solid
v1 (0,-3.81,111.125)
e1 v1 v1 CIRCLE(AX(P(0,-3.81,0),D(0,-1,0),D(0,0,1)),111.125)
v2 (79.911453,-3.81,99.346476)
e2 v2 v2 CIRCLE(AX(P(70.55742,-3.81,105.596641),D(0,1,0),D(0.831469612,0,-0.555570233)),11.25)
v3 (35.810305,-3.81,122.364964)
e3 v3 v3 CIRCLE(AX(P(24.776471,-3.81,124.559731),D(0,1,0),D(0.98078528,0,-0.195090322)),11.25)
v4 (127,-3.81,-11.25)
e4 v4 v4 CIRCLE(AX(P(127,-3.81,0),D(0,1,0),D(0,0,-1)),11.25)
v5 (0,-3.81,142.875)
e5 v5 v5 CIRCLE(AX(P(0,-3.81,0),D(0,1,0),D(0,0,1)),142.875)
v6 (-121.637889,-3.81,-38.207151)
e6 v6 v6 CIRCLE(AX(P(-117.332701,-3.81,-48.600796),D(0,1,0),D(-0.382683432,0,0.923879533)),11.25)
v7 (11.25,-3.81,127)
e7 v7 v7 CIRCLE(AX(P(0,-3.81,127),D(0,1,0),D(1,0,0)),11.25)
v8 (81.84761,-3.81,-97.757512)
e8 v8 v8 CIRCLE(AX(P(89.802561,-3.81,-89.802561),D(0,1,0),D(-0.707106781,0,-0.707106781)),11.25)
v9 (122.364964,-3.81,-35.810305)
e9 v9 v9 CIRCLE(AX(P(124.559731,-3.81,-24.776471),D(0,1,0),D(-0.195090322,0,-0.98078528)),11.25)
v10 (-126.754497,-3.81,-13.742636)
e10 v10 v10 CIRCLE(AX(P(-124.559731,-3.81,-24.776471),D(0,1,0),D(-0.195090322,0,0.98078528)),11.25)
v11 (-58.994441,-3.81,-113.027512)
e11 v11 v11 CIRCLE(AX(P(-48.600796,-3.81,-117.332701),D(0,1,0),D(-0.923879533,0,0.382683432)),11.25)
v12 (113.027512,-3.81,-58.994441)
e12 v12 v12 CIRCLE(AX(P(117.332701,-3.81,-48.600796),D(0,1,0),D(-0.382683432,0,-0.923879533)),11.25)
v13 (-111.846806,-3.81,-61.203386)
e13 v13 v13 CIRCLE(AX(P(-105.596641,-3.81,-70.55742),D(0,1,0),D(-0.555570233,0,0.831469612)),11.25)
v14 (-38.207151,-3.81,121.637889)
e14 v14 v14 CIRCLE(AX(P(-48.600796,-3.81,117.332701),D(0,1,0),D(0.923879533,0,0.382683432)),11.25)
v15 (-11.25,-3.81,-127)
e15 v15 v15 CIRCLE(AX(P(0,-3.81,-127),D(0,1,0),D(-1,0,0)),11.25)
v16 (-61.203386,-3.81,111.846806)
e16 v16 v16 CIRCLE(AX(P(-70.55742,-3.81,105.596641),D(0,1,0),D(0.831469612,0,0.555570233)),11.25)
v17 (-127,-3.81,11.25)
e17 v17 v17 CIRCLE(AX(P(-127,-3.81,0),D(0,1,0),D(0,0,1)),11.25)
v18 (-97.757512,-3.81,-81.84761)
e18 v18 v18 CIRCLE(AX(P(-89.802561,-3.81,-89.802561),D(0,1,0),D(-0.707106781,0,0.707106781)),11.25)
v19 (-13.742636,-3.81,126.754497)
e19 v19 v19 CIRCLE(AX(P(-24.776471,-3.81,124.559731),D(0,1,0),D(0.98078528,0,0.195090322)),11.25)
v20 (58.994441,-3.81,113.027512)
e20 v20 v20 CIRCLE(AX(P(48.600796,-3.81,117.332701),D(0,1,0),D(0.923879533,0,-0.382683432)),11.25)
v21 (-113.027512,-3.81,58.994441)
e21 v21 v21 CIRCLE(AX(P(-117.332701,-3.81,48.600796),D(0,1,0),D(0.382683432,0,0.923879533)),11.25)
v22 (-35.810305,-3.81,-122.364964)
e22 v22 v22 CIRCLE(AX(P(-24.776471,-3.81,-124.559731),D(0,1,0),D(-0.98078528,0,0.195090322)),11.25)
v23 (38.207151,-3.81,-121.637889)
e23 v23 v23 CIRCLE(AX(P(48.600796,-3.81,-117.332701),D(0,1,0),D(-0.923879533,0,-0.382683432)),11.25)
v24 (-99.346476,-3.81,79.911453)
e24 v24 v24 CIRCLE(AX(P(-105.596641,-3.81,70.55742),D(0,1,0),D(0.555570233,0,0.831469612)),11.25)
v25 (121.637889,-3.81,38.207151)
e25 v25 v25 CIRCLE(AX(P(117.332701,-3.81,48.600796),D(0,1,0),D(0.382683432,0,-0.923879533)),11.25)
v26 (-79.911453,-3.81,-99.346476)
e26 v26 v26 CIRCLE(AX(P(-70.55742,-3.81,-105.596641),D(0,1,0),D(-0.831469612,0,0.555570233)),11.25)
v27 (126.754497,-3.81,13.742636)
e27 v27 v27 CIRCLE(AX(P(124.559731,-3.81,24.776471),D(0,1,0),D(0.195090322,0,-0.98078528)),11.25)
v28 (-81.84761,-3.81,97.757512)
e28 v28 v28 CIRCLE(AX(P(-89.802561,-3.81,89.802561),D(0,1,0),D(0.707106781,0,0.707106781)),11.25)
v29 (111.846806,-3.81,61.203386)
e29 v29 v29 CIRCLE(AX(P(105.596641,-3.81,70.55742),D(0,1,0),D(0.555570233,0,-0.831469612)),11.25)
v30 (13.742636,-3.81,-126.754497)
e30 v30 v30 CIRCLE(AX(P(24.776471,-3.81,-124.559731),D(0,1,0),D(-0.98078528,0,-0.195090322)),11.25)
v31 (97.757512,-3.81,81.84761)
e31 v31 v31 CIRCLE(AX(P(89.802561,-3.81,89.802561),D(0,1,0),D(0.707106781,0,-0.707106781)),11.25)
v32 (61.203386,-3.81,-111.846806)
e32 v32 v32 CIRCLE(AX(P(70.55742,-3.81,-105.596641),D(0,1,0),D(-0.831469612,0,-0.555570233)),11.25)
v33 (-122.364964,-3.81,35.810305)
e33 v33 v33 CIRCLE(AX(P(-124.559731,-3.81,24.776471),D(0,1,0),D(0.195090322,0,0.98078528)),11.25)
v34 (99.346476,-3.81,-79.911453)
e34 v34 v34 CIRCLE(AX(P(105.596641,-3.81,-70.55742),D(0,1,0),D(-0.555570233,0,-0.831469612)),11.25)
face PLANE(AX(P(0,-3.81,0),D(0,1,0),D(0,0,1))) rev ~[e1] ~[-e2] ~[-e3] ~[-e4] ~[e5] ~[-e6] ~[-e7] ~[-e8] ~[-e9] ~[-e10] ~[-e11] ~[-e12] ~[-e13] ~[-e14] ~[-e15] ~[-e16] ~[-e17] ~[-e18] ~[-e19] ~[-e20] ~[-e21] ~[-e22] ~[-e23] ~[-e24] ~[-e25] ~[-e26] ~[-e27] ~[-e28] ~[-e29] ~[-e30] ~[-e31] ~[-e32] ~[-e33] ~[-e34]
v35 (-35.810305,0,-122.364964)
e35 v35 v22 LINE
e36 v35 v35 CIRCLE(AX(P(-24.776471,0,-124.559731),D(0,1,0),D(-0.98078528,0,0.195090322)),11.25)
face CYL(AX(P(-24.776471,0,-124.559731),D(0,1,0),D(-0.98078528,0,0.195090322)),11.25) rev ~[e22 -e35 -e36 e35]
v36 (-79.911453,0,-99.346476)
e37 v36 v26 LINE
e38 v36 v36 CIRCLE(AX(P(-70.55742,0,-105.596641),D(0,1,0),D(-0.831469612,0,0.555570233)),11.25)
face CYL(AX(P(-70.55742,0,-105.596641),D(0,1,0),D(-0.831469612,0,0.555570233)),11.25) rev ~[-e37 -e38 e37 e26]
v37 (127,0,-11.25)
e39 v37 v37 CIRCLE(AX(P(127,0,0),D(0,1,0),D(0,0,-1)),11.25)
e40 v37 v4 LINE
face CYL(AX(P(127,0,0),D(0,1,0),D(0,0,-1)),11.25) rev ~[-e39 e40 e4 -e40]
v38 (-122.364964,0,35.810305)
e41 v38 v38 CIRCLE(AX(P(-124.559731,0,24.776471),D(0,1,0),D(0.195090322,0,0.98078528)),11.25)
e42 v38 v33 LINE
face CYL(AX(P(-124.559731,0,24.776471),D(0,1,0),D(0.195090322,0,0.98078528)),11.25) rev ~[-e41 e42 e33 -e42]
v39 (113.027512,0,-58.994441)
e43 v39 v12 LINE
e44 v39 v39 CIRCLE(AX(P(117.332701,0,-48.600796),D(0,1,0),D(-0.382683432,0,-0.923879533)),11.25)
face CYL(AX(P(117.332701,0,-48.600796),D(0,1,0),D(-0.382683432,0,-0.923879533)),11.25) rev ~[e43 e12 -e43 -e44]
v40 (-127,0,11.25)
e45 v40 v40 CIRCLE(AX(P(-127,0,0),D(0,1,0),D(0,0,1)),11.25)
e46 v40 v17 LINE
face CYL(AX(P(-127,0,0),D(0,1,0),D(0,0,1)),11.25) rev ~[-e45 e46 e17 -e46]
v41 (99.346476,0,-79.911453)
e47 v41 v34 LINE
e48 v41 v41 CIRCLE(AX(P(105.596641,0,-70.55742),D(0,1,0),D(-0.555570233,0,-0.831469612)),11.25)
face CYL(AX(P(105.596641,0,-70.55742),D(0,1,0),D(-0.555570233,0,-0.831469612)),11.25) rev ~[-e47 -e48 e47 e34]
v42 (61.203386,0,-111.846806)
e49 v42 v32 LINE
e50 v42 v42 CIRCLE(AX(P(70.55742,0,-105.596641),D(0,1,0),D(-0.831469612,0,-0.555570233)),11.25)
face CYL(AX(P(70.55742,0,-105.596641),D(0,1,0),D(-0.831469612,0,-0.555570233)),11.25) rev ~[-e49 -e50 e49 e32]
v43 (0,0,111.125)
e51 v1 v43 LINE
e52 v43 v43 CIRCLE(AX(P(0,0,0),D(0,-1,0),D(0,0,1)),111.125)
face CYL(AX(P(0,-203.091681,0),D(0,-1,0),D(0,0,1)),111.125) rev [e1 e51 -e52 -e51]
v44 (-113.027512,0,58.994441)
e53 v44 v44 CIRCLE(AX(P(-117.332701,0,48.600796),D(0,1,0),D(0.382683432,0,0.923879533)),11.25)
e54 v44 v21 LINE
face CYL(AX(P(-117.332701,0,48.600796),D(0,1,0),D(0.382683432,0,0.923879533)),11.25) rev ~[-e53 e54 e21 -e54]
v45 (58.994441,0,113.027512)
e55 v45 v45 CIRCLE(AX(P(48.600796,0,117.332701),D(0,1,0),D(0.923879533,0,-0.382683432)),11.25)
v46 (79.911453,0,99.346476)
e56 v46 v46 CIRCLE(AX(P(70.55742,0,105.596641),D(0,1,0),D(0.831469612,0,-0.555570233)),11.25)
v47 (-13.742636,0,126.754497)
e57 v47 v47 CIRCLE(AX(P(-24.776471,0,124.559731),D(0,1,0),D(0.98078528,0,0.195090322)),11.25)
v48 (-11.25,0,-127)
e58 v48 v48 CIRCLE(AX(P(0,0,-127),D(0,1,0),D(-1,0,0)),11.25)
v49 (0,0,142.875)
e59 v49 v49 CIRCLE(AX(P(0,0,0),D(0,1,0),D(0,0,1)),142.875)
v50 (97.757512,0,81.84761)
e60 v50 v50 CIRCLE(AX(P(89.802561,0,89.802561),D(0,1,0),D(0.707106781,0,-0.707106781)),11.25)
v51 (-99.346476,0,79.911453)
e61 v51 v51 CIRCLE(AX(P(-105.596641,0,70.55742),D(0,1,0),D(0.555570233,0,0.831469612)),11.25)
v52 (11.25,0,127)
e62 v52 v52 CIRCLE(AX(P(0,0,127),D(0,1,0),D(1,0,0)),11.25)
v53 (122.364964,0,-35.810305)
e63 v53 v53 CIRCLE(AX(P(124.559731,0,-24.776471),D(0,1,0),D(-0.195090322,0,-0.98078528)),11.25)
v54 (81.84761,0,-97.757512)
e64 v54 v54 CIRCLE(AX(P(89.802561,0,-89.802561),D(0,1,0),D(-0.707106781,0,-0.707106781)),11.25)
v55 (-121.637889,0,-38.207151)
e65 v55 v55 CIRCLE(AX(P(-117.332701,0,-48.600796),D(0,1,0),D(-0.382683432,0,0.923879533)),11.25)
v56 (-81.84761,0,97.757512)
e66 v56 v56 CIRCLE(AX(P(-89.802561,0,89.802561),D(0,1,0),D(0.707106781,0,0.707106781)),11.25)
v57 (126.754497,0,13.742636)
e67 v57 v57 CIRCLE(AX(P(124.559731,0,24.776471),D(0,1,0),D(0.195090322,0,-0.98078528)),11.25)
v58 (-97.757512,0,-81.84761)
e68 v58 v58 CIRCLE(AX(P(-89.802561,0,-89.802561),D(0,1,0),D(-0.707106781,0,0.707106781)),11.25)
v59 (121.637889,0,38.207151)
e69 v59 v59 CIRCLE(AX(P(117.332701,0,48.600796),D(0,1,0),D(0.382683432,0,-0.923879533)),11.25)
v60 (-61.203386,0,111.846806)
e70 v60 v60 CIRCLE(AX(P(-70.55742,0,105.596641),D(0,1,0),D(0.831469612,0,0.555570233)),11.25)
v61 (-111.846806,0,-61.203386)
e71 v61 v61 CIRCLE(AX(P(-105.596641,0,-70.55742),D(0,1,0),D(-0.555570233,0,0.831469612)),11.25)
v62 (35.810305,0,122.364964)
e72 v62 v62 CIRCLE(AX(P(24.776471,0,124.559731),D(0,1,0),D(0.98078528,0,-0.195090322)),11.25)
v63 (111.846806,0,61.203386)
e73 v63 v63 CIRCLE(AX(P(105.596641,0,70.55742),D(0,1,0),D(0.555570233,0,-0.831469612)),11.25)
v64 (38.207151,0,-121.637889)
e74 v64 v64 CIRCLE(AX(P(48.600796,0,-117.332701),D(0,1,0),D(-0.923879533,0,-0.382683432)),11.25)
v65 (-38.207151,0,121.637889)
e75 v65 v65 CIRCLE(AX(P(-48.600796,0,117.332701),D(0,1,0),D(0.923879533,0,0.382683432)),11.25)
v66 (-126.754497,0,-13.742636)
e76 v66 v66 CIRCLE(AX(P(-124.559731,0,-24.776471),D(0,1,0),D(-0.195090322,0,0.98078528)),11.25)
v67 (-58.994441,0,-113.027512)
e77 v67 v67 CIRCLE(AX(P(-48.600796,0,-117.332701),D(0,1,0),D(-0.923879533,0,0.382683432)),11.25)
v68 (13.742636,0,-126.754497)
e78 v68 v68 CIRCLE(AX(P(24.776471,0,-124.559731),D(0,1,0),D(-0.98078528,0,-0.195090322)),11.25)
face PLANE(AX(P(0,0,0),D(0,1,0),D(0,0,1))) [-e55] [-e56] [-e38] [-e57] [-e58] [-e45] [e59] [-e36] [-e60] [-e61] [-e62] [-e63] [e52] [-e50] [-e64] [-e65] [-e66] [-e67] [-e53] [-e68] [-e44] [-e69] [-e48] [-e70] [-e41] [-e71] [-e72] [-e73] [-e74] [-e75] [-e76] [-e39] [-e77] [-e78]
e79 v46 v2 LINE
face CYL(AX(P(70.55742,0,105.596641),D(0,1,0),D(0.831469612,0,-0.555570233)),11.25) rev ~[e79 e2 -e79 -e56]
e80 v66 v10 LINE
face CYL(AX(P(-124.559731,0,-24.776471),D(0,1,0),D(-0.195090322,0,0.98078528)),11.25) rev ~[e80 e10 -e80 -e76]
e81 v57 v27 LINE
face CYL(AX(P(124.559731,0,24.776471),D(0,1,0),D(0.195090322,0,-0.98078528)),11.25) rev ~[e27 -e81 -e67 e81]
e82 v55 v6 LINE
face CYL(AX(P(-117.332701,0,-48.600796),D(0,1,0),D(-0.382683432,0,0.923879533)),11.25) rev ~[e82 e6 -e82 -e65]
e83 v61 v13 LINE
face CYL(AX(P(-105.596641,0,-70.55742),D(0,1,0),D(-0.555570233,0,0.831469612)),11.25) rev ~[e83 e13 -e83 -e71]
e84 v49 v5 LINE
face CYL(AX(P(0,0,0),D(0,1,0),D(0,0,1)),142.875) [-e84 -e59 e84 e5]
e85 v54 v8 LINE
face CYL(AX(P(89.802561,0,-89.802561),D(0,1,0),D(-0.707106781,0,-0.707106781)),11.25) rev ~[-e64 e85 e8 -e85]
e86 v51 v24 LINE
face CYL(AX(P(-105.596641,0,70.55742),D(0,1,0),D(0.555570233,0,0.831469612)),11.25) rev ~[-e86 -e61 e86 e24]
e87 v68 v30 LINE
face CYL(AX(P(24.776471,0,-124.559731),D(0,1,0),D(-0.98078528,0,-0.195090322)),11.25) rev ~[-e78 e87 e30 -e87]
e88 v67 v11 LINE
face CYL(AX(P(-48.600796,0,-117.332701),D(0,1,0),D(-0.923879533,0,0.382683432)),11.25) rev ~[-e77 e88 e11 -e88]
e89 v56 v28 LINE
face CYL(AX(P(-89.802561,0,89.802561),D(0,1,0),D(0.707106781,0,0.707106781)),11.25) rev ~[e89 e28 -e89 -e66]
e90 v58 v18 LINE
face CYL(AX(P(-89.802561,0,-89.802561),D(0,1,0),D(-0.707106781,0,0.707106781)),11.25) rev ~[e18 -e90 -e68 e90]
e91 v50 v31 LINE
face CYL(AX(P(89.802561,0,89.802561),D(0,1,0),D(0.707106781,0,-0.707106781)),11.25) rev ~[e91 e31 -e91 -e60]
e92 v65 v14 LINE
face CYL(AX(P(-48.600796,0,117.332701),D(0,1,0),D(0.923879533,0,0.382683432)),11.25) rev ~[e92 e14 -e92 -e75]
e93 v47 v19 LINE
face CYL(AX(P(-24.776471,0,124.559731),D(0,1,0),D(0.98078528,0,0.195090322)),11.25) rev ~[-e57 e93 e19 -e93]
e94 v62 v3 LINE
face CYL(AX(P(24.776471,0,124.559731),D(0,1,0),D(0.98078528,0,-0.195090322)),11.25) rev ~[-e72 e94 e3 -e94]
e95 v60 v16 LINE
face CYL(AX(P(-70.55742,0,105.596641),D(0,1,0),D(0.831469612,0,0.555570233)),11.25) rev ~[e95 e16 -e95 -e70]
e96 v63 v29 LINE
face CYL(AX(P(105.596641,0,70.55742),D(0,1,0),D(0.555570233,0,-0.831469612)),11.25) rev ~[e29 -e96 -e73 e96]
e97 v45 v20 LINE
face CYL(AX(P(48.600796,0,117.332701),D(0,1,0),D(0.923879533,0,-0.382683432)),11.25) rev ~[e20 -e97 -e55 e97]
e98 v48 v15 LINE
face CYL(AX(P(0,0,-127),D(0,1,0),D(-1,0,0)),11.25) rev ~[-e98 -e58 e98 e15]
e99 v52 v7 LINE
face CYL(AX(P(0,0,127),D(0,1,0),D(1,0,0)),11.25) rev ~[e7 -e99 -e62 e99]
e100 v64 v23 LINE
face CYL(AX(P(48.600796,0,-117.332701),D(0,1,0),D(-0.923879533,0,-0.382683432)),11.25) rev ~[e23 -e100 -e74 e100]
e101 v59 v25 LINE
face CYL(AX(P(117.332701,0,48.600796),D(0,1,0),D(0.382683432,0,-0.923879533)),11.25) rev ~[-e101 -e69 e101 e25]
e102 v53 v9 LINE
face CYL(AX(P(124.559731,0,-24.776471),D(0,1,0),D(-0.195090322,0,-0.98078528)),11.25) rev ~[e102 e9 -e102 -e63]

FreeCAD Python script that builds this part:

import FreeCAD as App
import Part
import Sketcher

V = App.Vector
Q = App.Units.Quantity

doc = App.newDocument("Part")
body = doc.addObject("PartDesign::Body", "Body")

# Sketch on XZ plane
sketch1 = body.newObject("Sketcher::SketchObject", "Sketch")
sketch1.AttachmentSupport = (doc.getObject("XZ_Plane"), [""])
sketch1.MapMode = "FlatFace"
sketch1.addGeometry(Part.Circle(V(0, 0, 0), V(0, 0, 1), 142.875), False)
sketch1.addGeometry(Part.Circle(V(0, 0, 0), V(0, 0, 1), 11.25), False)
sketch1.addConstraint(Sketcher.Constraint("Coincident", 0, 3, -1, 1))
sketch1.addConstraint(Sketcher.Constraint("Coincident", 1, 3, -1, 1))
sketch1.addConstraint(Sketcher.Constraint("Diameter", 0, Q("11.25 in")))
sketch1.addConstraint(Sketcher.Constraint("Diameter", 1, Q("22.5 mm")))
pad1 = body.newObject("PartDesign::Pad", "Pad")
pad1.Profile = sketch1
pad1.Length = Q("0.15 in")

# Sketch on XZ plane
sketch2 = body.newObject("Sketcher::SketchObject", "Sketch001")
sketch2.AttachmentSupport = (doc.getObject("XZ_Plane"), [""])
sketch2.MapMode = "FlatFace"
sketch2.addGeometry(Part.Circle(V(-127, 0, 0), V(0, 0, 1), 11.25), False)
sketch2.addConstraint(Sketcher.Constraint("PointOnObject", 0, 3, -1))
sketch2.addConstraint(Sketcher.Constraint("DistanceX", 0, 3, -1, 1, Q("5 in")))
sketch2.addConstraint(Sketcher.Constraint("Diameter", 0, Q("22.5 mm")))
pocket1 = body.newObject("PartDesign::Pocket", "Pocket")
pocket1.Profile = sketch2
pocket1.Type = "ThroughAll"
pocket1.Reversed = True

# Sketch on XZ plane
sketch3 = body.newObject("Sketcher::SketchObject", "Sketch002")
sketch3.AttachmentSupport = (doc.getObject("XZ_Plane"), [""])
sketch3.MapMode = "FlatFace"
sketch3.addGeometry(Part.Circle(V(0, 0, 0), V(0, 0, 1), 111.125), False)
sketch3.addConstraint(Sketcher.Constraint("Coincident", 0, 3, -1, 1))
sketch3.addConstraint(Sketcher.Constraint("Diameter", 0, Q("8.75 in")))
pocket2 = body.newObject("PartDesign::Pocket", "Pocket001")
pocket2.Profile = sketch3
pocket2.Type = "ThroughAll"
pocket2.Midplane = True
doc.recompute()

polarpattern = body.newObject("PartDesign::PolarPattern", "PolarPattern")
polarpattern.Originals = [pocket1]
polarpattern.Axis = (doc.getObject("Y_Axis"), [""])
polarpattern.Angle = 360
polarpattern.Occurrences = 32
body.Tip = polarpattern

doc.recompute()
